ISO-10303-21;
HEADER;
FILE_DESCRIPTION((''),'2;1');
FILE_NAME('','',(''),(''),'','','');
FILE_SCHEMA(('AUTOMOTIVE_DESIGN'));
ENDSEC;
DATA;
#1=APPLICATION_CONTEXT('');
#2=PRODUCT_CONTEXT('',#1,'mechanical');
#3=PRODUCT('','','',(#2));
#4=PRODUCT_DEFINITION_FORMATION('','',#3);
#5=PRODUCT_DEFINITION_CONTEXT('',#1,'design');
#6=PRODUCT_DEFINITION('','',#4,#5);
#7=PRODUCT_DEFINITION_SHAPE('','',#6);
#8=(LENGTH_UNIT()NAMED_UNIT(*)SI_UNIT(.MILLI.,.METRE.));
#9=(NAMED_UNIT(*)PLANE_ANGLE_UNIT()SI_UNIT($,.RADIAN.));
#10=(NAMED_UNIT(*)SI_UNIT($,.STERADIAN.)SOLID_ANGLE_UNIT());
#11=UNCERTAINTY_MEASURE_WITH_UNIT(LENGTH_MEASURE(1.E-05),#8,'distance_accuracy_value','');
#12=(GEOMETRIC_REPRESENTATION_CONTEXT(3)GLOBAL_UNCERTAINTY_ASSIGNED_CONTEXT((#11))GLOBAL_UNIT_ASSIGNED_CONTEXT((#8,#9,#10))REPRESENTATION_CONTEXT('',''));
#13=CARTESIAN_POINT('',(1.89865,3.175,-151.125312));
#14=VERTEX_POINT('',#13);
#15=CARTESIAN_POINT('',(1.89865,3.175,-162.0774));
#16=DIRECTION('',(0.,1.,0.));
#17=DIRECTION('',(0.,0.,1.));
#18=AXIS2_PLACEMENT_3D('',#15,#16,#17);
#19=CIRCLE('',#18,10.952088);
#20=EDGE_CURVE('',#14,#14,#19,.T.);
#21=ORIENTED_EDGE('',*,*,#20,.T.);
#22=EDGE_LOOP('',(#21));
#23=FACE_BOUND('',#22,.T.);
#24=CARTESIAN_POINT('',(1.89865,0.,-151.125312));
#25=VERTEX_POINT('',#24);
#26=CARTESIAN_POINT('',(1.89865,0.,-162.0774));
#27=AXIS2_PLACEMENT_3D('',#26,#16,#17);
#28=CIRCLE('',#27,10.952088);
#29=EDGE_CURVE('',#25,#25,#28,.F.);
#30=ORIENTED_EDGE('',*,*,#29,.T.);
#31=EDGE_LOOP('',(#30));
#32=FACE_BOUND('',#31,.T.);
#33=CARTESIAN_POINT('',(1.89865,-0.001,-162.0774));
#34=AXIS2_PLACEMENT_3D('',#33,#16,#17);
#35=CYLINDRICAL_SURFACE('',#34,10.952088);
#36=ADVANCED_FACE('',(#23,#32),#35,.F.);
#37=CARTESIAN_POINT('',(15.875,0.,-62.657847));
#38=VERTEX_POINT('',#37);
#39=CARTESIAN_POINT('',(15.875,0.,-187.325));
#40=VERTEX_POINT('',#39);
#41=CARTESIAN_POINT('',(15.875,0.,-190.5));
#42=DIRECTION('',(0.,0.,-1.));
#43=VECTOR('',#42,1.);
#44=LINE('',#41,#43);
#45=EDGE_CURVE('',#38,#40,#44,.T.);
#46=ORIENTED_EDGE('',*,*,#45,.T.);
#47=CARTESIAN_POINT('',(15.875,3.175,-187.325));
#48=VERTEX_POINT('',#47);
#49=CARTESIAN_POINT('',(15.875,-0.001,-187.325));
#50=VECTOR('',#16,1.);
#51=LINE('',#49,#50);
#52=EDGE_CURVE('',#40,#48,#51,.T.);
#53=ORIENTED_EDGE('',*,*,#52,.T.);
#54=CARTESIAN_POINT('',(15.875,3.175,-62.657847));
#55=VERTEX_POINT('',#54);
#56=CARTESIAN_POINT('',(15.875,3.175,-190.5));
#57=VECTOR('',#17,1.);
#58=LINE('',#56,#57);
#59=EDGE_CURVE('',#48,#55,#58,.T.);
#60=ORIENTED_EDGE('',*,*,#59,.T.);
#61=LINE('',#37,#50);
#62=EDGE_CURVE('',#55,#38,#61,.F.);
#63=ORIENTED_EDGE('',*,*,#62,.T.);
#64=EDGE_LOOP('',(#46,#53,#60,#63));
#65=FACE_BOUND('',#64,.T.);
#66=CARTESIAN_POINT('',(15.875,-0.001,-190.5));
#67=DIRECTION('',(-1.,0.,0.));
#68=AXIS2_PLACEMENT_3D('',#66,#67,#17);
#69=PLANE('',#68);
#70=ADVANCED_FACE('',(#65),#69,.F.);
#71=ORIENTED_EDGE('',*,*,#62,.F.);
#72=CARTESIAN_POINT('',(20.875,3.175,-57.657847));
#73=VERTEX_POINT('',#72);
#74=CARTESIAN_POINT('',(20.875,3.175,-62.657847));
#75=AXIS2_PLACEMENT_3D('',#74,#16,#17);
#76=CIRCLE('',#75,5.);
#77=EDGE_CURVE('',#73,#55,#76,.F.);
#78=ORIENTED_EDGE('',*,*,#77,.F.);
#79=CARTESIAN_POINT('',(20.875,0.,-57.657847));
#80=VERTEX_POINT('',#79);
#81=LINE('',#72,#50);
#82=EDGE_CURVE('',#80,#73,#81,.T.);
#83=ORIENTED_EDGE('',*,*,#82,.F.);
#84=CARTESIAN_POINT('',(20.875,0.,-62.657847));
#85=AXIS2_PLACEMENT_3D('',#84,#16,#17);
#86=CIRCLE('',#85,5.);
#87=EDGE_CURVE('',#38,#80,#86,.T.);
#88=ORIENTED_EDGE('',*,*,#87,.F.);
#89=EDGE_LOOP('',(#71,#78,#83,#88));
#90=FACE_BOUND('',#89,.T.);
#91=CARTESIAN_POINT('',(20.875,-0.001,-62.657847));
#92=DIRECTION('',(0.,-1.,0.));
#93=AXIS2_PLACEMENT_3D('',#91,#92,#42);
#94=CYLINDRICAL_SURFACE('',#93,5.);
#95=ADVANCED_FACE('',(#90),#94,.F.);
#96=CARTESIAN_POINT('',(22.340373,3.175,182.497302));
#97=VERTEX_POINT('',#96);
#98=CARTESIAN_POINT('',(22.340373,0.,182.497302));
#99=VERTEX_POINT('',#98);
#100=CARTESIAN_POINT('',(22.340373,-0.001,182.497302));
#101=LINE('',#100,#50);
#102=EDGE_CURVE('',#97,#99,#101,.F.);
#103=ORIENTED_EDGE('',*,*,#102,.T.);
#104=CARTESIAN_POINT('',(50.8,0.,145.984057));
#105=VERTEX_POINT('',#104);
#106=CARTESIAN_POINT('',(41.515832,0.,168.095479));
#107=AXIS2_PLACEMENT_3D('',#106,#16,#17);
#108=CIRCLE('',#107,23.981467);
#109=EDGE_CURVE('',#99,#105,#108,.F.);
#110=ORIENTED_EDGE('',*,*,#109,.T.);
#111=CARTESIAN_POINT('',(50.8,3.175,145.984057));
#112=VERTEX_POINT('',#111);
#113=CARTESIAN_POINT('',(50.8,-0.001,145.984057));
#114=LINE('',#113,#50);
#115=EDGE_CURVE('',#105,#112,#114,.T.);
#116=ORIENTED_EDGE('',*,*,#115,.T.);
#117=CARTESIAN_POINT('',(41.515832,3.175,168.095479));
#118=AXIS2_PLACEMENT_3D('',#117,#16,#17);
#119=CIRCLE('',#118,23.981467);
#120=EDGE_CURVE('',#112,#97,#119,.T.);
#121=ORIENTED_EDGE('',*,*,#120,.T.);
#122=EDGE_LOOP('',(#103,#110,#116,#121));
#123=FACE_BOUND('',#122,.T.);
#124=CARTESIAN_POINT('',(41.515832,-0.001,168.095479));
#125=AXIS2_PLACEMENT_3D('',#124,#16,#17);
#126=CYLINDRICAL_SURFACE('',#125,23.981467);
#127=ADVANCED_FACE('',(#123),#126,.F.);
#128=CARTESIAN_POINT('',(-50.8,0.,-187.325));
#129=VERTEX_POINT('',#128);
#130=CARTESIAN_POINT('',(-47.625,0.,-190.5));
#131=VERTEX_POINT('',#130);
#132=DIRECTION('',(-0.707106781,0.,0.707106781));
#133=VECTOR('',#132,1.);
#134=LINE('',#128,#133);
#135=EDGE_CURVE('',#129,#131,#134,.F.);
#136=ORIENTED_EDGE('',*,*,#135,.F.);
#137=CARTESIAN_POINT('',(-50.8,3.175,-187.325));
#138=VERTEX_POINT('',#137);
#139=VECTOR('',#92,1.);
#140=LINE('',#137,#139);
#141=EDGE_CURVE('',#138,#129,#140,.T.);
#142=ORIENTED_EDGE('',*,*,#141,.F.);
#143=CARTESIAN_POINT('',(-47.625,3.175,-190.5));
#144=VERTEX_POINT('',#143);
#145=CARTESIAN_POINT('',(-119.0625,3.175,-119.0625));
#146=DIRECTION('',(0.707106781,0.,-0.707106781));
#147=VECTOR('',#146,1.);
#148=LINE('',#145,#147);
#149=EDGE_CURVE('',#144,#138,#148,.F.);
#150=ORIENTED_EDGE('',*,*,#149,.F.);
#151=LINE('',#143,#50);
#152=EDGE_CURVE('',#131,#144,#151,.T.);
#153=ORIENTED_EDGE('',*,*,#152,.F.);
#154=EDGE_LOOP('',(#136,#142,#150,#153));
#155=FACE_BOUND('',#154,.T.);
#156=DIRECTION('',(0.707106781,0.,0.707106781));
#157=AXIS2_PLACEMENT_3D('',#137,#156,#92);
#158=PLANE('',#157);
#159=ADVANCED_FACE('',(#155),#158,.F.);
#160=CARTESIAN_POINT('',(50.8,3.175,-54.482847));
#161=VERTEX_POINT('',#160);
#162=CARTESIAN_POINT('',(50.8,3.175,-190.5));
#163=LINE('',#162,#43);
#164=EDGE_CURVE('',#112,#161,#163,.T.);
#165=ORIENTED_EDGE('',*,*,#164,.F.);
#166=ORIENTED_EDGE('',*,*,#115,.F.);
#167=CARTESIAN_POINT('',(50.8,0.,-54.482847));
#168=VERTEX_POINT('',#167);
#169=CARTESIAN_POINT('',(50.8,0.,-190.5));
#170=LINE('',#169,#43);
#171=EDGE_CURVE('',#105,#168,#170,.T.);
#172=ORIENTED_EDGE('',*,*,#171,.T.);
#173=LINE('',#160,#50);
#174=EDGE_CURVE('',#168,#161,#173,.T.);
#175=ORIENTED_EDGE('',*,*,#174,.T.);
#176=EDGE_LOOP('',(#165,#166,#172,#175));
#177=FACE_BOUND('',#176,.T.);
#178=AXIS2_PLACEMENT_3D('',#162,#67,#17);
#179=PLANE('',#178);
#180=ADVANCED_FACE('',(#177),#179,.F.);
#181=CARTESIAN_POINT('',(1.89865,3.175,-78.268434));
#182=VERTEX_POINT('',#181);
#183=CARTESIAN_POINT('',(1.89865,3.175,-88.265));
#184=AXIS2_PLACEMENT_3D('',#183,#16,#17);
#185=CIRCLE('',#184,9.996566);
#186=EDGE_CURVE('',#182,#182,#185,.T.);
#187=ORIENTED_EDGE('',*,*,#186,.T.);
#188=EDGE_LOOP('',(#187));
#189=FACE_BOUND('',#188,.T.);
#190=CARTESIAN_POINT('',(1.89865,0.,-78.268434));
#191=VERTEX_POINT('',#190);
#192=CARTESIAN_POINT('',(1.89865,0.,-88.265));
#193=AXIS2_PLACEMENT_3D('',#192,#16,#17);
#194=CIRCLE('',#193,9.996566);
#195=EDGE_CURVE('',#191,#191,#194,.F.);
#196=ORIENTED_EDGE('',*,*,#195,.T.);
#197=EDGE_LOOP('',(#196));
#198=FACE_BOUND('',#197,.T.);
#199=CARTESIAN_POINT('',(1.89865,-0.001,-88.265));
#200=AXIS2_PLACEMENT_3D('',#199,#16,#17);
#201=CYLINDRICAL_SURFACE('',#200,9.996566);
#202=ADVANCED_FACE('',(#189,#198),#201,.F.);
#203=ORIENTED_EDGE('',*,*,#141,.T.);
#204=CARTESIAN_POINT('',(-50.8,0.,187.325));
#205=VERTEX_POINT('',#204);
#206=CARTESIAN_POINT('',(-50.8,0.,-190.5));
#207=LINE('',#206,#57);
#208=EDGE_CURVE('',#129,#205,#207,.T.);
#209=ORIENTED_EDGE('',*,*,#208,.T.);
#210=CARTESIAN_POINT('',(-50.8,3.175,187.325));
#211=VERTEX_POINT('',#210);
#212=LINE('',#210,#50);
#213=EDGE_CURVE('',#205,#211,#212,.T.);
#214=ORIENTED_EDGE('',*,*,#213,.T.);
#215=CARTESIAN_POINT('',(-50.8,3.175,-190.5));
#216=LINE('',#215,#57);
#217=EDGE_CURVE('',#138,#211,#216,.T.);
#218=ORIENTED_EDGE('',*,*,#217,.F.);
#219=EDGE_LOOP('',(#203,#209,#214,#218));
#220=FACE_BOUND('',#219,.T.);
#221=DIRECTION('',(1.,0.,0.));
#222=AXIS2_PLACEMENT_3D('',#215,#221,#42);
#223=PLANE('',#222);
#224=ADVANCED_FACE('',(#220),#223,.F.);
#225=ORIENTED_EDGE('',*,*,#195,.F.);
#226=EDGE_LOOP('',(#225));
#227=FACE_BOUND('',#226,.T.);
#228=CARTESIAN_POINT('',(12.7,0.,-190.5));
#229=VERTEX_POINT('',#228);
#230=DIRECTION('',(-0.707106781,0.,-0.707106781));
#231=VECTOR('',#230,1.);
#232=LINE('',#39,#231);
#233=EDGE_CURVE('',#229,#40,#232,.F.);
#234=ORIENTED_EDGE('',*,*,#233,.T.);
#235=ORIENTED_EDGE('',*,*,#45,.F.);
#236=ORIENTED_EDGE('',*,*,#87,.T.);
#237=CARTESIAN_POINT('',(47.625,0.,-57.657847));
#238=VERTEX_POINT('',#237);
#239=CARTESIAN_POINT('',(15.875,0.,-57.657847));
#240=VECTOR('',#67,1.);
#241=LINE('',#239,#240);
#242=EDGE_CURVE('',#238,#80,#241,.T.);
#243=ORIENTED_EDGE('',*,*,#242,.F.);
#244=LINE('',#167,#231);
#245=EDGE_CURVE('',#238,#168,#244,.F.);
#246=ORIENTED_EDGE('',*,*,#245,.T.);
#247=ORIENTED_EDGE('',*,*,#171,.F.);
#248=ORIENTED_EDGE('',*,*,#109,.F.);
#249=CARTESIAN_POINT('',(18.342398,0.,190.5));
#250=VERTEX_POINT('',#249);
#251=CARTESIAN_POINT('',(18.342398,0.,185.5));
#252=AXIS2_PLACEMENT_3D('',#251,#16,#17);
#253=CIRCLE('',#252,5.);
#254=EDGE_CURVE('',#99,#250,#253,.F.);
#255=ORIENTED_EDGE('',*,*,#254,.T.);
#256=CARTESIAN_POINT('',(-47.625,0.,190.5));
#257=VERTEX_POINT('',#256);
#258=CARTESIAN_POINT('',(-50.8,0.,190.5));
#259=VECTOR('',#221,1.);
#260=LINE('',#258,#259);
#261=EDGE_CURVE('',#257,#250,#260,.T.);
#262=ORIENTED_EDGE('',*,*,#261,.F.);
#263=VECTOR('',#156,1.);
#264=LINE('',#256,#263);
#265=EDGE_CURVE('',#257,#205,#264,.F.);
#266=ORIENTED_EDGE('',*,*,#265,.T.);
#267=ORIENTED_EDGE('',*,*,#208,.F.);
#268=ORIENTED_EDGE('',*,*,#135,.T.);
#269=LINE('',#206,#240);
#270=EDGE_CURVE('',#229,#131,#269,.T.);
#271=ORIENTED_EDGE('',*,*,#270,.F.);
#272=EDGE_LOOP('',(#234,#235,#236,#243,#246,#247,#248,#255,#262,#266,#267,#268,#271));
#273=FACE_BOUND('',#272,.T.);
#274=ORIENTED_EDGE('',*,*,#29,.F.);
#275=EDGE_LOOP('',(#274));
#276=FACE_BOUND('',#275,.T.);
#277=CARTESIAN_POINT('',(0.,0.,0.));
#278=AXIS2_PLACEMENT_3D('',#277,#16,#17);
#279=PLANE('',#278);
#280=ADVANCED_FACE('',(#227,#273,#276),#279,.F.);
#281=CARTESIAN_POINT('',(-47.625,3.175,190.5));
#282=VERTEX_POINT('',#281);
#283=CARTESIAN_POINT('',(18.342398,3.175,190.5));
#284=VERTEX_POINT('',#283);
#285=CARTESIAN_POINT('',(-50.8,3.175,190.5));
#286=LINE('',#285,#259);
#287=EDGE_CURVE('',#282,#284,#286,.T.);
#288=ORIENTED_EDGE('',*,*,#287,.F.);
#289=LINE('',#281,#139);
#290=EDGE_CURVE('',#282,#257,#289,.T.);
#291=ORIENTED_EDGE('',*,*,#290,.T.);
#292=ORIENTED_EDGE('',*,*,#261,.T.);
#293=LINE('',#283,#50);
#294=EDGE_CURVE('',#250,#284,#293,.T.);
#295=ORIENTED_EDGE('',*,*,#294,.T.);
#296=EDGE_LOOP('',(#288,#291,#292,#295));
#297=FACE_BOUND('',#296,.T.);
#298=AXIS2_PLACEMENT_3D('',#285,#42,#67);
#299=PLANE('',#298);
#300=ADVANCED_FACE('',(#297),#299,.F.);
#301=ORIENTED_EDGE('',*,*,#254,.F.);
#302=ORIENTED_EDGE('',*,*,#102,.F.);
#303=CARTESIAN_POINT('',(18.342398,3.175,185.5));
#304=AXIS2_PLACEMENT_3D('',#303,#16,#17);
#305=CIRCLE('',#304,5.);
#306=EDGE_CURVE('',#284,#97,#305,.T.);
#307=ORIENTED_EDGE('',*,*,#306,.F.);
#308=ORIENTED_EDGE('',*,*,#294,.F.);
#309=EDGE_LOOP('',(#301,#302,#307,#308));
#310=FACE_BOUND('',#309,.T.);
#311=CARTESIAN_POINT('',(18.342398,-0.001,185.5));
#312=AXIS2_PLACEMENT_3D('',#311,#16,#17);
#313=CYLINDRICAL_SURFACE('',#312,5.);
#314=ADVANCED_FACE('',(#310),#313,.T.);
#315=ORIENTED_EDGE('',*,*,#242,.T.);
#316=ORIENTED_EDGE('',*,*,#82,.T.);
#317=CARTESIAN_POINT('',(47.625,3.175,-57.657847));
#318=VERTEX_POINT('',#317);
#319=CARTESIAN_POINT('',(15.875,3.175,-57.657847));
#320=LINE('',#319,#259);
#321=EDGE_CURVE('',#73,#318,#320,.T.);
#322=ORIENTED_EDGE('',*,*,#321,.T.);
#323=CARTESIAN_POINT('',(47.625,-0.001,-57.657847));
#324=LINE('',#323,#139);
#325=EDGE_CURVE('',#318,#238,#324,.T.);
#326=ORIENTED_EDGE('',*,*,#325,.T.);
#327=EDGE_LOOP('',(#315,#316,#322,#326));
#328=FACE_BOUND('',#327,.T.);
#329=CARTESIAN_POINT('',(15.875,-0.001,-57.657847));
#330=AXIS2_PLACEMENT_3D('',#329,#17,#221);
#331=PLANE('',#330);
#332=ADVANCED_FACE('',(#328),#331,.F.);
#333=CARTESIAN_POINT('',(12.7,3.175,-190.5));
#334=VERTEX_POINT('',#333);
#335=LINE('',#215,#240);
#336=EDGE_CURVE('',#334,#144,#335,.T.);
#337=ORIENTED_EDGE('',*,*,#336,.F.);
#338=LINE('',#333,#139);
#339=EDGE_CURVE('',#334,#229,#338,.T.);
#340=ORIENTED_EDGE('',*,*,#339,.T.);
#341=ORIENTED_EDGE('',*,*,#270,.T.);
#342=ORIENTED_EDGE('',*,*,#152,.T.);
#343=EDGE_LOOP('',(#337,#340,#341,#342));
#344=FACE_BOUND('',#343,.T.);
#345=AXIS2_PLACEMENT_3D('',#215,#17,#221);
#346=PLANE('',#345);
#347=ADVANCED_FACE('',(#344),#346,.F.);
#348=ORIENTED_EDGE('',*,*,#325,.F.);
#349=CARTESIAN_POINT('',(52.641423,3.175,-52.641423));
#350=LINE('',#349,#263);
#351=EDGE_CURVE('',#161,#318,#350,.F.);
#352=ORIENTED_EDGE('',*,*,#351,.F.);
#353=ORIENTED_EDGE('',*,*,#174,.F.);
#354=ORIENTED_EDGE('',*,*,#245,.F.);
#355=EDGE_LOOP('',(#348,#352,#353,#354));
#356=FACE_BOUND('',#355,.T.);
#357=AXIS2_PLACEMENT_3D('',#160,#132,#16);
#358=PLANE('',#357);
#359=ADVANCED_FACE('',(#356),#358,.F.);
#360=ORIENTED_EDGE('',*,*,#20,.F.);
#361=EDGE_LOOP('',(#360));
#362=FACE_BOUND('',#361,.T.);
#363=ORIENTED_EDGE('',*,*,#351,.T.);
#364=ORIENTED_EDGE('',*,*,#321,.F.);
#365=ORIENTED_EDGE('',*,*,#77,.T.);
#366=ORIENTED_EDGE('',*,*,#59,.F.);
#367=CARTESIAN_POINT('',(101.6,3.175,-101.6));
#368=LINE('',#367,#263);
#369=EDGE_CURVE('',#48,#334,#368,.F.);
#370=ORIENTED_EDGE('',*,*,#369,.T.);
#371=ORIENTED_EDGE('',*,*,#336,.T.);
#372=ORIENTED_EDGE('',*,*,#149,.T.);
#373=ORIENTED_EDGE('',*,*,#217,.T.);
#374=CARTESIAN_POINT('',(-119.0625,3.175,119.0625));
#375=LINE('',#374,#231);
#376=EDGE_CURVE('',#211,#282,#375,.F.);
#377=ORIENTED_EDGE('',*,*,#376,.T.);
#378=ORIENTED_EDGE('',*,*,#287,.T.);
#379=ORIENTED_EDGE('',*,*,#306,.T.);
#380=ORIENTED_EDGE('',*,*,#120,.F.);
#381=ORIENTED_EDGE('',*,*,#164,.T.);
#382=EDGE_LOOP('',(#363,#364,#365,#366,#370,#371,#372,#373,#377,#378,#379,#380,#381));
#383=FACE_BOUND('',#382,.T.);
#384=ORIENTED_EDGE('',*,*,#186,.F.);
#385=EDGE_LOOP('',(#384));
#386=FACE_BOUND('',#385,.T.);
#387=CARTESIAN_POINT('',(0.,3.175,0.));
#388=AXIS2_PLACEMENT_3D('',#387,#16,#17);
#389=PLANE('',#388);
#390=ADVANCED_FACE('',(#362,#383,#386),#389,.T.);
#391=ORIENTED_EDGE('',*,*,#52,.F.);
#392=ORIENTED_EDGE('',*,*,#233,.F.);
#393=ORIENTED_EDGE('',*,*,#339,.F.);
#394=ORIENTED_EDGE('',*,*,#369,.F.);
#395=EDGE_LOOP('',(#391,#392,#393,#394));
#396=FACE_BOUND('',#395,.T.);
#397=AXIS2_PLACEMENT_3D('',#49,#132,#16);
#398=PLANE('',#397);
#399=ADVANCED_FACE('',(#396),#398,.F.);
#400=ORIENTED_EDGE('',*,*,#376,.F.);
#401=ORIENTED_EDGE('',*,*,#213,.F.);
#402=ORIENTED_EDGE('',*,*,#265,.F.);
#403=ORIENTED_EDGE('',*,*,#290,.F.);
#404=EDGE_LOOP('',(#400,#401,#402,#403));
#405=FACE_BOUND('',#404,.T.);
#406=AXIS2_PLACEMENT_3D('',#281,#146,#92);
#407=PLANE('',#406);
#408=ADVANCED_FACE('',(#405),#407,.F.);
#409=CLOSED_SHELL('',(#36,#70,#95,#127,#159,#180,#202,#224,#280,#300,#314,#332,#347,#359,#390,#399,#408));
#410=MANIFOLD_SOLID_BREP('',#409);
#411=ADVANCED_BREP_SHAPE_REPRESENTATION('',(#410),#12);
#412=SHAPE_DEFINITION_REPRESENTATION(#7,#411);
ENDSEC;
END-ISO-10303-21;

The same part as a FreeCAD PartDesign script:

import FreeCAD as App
import Part
import Sketcher
from FreeCAD import Vector
Q = App.Units.Quantity


def edges_at(feature, points):
    """Names of the edges that pass closest to the given points."""
    edges = feature.Shape.Edges
    near = lambda p: min(range(len(edges)), key=lambda i: edges[i].distToShape(Part.Vertex(*p))[0])
    return sorted({f"Edge{near(p) + 1}" for p in points})


def add_polygon(sketch, points):
    """Adds a closed chain of lines whose ends are joined by coincident constraints."""
    first, n = sketch.GeometryCount, len(points)
    for a, b in zip(points, points[1:] + points[:1]):
        sketch.addGeometry(Part.LineSegment(App.Vector(*a, 0), App.Vector(*b, 0)), False)
    for i in range(n):
        sketch.addConstraint(Sketcher.Constraint("Coincident", first + i, 2, first + (i + 1) % n, 1))

doc = App.newDocument("Part")
body = doc.addObject("PartDesign::Body", "Body")

# Sketch on XZ plane
sketch1 = doc.addObject("Sketcher::SketchObject", "Sketch")
body.addObject(sketch1)
sketch1.AttachmentSupport = (doc.XZ_Plane, [""])
sketch1.MapMode = "FlatFace"
add_polygon(sketch1, [(-51, -190), (-51, 190), (51, 190), (51, -190)])  # lines 0-3
sketch1.addConstraint(Sketcher.Constraint("Vertical", 0))
sketch1.addConstraint(Sketcher.Constraint("Horizontal", 1))
sketch1.addConstraint(Sketcher.Constraint("Vertical", 2))
sketch1.addConstraint(Sketcher.Constraint("Horizontal", 3))
sketch1.addConstraint(Sketcher.Constraint("Symmetric", 0, 2, 2, 2, -1, 1))
sketch1.addConstraint(Sketcher.Constraint("DistanceX", 1, 1, 1, 2, Q("4 in")))
sketch1.addConstraint(Sketcher.Constraint("DistanceY", 0, 1, 0, 2, Q("15 in")))
pad1 = doc.addObject("PartDesign::Pad", "Pad")
body.addObject(pad1)
pad1.Profile = sketch1
pad1.Length = Q("0.125 in")
pad1.Reversed = True
doc.recompute()

chamfer = doc.addObject("PartDesign::Chamfer", "Chamfer")
body.addObject(chamfer)
chamfer.Base = (pad1, edges_at(pad1, [
    (50.8, 1.587, 190.5),
    (-50.8, 1.587, 190.5),
    (-50.8, 1.587, -190.5),
    (50.8, 1.587, -190.5),
]))
chamfer.Size = Q("0.125 in")

# Sketch on XZ plane
sketch2 = doc.addObject("Sketcher::SketchObject", "Sketch001")
body.addObject(sketch2)
sketch2.AttachmentSupport = (doc.XZ_Plane, [""])
sketch2.MapMode = "FlatFace"
sketch2.AttachmentOffset = App.Placement(Vector(0, 0, -0.125 * 25.4), App.Rotation())
sketch2.addGeometry(Part.Circle(Vector(42, 168, 0), Vector(0, 0, 1), 24), False)
sketch2.addConstraint(Sketcher.Constraint("Diameter", 0, 47.962933))
sketch2.addConstraint(Sketcher.Constraint("DistanceY", -1, 1, 0, 3, 168.095479))
sketch2.addConstraint(Sketcher.Constraint("DistanceX", -1, 1, 0, 3, 41.515832))
pocket1 = doc.addObject("PartDesign::Pocket", "Pocket")
body.addObject(pocket1)
pocket1.Profile = sketch2
pocket1.Type = "UpToFirst"
pocket1.Reversed = True

# Sketch on XZ plane
sketch3 = doc.addObject("Sketcher::SketchObject", "Sketch002")
body.addObject(sketch3)
sketch3.AttachmentSupport = (doc.XZ_Plane, [""])
sketch3.MapMode = "FlatFace"
sketch3.AttachmentOffset = App.Placement(Vector(0, 0, -0.125 * 25.4), App.Rotation())
sketch3.addGeometry(Part.Circle(Vector(2, -162, 0), Vector(0, 0, 1), 11), False)
sketch3.addConstraint(Sketcher.Constraint("DistanceY", 0, 3, -1, 1, Q("6.381 in")))
sketch3.addConstraint(Sketcher.Constraint("Diameter", 0, 21.904177))
sketch3.addConstraint(Sketcher.Constraint("DistanceX", -1, 1, 0, 3, 1.89865))
pocket2 = doc.addObject("PartDesign::Pocket", "Pocket001")
body.addObject(pocket2)
pocket2.Profile = sketch3
pocket2.Type = "UpToFirst"
pocket2.Reversed = True

# Sketch on XZ plane
sketch4 = doc.addObject("Sketcher::SketchObject", "Sketch003")
body.addObject(sketch4)
sketch4.AttachmentSupport = (doc.XZ_Plane, [""])
sketch4.MapMode = "FlatFace"
sketch4.AttachmentOffset = App.Placement(Vector(0, 0, -0.125 * 25.4), App.Rotation())
sketch4.addGeometry(Part.Circle(Vector(2, -88, 0), Vector(0, 0, 1), 10), False)
sketch4.addConstraint(Sketcher.Constraint("DistanceY", 0, 3, -1, 1, Q("3.475 in")))
sketch4.addConstraint(Sketcher.Constraint("Diameter", 0, 19.993132))
sketch4.addConstraint(Sketcher.Constraint("DistanceX", -1, 1, 0, 3, 1.89865))
pocket3 = doc.addObject("PartDesign::Pocket", "Pocket002")
body.addObject(pocket3)
pocket3.Profile = sketch4
pocket3.Type = "UpToFirst"
pocket3.Reversed = True

# Sketch on XZ plane
sketch5 = doc.addObject("Sketcher::SketchObject", "Sketch004")
body.addObject(sketch5)
sketch5.AttachmentSupport = (doc.XZ_Plane, [""])
sketch5.MapMode = "FlatFace"
sketch5.AttachmentOffset = App.Placement(Vector(0, 0, -0.125 * 25.4), App.Rotation())
add_polygon(sketch5, [(16, -190), (16, -58), (51, -58), (51, -190)])  # lines 0-3
sketch5.addConstraint(Sketcher.Constraint("Vertical", 0))
sketch5.addConstraint(Sketcher.Constraint("Horizontal", 1))
sketch5.addConstraint(Sketcher.Constraint("Vertical", 2))
sketch5.addConstraint(Sketcher.Constraint("Horizontal", 3))
sketch5.addConstraint(Sketcher.Constraint("DistanceX", -1, 1, 1, 2, Q("2 in")))
sketch5.addConstraint(Sketcher.Constraint("DistanceY", 2, 2, -1, 1, Q("7.5 in")))
sketch5.addConstraint(Sketcher.Constraint("DistanceX", 1, 1, 1, 2, Q("1.375 in")))
sketch5.addConstraint(Sketcher.Constraint("DistanceY", 0, 1, 0, 2, 132.842153))
pocket4 = doc.addObject("PartDesign::Pocket", "Pocket003")
body.addObject(pocket4)
pocket4.Profile = sketch5
pocket4.Type = "UpToFirst"
pocket4.Reversed = True
doc.recompute()

chamfer2 = doc.addObject("PartDesign::Chamfer", "Chamfer001")
body.addObject(chamfer2)
chamfer2.Base = (pocket4, edges_at(pocket4, [(15.875, 1.587, -190.5), (50.8, 1.587, -57.658)]))
chamfer2.Size = Q("0.125 in")
doc.recompute()

fillet = doc.addObject("PartDesign::Fillet", "Fillet")
body.addObject(fillet)
fillet.Base = (chamfer2, edges_at(chamfer2, [(15.875, 1.587, -57.658)]))
fillet.Radius = 5
doc.recompute()

fillet2 = doc.addObject("PartDesign::Fillet", "Fillet001")
body.addObject(fillet2)
fillet2.Base = (fillet, edges_at(fillet, [(32.963, 1.587, 190.5)]))
fillet2.Radius = 5

doc.recompute()
